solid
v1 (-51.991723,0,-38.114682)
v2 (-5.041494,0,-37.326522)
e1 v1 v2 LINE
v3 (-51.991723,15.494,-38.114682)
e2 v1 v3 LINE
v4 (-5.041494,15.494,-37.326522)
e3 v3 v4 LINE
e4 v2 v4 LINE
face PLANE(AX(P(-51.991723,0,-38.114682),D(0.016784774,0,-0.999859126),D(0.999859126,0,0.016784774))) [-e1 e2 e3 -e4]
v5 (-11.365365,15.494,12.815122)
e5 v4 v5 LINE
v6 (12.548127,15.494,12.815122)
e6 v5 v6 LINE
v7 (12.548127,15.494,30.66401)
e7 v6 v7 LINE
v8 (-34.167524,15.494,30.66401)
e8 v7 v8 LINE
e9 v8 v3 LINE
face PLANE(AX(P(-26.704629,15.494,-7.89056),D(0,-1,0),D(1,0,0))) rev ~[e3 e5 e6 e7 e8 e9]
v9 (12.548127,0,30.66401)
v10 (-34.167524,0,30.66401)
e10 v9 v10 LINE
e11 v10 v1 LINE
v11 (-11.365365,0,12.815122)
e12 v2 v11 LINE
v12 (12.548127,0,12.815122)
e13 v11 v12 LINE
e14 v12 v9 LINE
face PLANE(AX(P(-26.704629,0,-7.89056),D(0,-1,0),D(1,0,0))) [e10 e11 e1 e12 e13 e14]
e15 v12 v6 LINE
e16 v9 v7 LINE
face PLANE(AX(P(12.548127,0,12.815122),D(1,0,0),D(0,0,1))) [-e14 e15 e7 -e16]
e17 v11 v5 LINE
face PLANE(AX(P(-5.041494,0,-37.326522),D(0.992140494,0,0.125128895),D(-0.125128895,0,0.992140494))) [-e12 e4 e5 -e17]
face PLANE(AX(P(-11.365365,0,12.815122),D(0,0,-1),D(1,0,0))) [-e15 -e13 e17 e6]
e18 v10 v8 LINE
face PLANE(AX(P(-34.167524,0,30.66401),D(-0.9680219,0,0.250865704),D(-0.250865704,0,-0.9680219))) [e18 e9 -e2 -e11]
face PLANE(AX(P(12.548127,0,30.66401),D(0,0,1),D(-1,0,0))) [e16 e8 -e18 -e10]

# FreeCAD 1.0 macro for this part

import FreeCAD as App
import Part
import Sketcher

V = App.Vector
Q = App.Units.Quantity

doc = App.newDocument("Part")
body = doc.addObject("PartDesign::Body", "Body")

sketch1 = doc.addObject("Sketcher::SketchObject", "Sketch")
body.addObject(sketch1)
sketch1.AttachmentSupport = (doc.XZ_Plane, [""])
sketch1.MapMode = "FlatFace"
sketch1.addGeometry([
    Part.LineSegment(V(-34.167524, 30.66401, 0), V(-51.991723, -38.114682, 0)),
    Part.LineSegment(V(-51.991723, -38.114682, 0), V(-5.041494, -37.326522, 0)),
    Part.LineSegment(V(-5.041494, -37.326522, 0), V(-11.365365, 12.815122, 0)),
    Part.LineSegment(V(-11.365365, 12.815122, 0), V(12.548127, 12.815122, 0)),
    Part.LineSegment(V(12.548127, 12.815122, 0), V(12.548127, 30.66401, 0)),
    Part.LineSegment(V(12.548127, 30.66401, 0), V(-34.167524, 30.66401, 0)),
], False)
sketch1.addConstraint([
    Sketcher.Constraint("Coincident", 0, 2, 1, 1),
    Sketcher.Constraint("Coincident", 1, 2, 2, 1),
    Sketcher.Constraint("Coincident", 2, 2, 3, 1),
    Sketcher.Constraint("Coincident", 3, 2, 4, 1),
    Sketcher.Constraint("Coincident", 4, 2, 5, 1),
    Sketcher.Constraint("Coincident", 5, 2, 0, 1),
    Sketcher.Constraint("Horizontal", 3),
    Sketcher.Constraint("Vertical", 4),
    Sketcher.Constraint("Horizontal", 5),
    Sketcher.Constraint("DistanceX", 3, 1, 3, 2, 23.913492),
    Sketcher.Constraint("DistanceX", 5, 2, 5, 1, 46.715651),
    Sketcher.Constraint("DistanceY", 4, 1, 4, 2, 17.848888),
    Sketcher.Constraint("DistanceX", 0, 2, 5, 2, 17.824199),
    Sketcher.Constraint("Distance", 0, 71.05076),
    Sketcher.Constraint("DistanceY", 1, 2, -1, 1, 37.326522),
    Sketcher.Constraint("DistanceY", -1, 1, 4, 2, 30.66401),
    Sketcher.Constraint("DistanceX", 0, 2, 1, 2, 46.950229),
    Sketcher.Constraint("DistanceX", 0, 2, -1, 1, 51.991723),
])
pad1 = doc.addObject("PartDesign::Pad", "Pad")
body.addObject(pad1)
pad1.Profile = sketch1
pad1.Length = Q("0.61 in")
pad1.Reversed = True

doc.recompute()
